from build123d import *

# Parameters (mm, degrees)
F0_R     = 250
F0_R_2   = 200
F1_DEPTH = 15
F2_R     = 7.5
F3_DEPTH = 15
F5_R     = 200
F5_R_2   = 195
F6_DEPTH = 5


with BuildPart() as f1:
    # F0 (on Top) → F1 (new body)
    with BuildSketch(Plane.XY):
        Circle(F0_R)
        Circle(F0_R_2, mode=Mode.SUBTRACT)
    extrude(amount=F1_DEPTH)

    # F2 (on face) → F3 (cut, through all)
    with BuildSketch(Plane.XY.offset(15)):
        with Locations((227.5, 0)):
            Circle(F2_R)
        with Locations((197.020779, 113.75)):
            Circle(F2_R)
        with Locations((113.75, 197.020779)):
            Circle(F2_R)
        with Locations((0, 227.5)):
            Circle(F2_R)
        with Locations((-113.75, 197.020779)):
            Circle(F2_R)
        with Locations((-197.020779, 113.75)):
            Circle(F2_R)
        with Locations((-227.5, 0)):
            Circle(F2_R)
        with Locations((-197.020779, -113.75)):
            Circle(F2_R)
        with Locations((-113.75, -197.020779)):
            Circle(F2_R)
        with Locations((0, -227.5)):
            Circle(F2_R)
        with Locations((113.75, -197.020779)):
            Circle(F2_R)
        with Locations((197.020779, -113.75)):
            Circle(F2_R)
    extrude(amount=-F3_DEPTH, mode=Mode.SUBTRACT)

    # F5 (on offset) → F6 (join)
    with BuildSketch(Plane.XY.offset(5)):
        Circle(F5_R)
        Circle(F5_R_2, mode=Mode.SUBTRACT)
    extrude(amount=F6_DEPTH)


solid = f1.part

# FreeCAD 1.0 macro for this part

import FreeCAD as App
import Part
import Sketcher

V = App.Vector
Q = App.Units.Quantity

doc = App.newDocument("Part")
body = doc.addObject("PartDesign::Body", "Body")

# Sketch on XY plane
sketch1 = body.newObject("Sketcher::SketchObject", "Sketch")
sketch1.AttachmentSupport = (doc.getObject("XY_Plane"), [""])
sketch1.MapMode = "FlatFace"
sketch1.addGeometry([
    Part.Circle(V(0, 0, 0), V(0, 0, 1), 250),
    Part.Circle(V(0, 0, 0), V(0, 0, 1), 200),
], False)
sketch1.addConstraint([
    Sketcher.Constraint("Coincident", 0, 3, -1, 1),
    Sketcher.Constraint("Coincident", 1, 3, -1, 1),
    Sketcher.Constraint("Diameter", 0, Q("500 mm")),
    Sketcher.Constraint("Diameter", 1, Q("400 mm")),
])
pad1 = body.newObject("PartDesign::Pad", "Pad")
pad1.Profile = sketch1
pad1.Length = 15

# Sketch on XY plane
sketch2 = body.newObject("Sketcher::SketchObject", "Sketch001")
sketch2.AttachmentSupport = (doc.getObject("XY_Plane"), [""])
sketch2.MapMode = "FlatFace"
sketch2.AttachmentOffset = App.Placement(V(0, 0, 15), App.Rotation())
sketch2.addGeometry([
    Part.Circle(V(227.5, 0, 0), V(0, 0, 1), 7.5),  # 0
    Part.Circle(V(197.020779, 113.75, 0), V(0, 0, 1), 7.5),  # 1
    Part.Circle(V(113.75, 197.020779, 0), V(0, 0, 1), 7.5),  # 2
    Part.Circle(V(0, 227.5, 0), V(0, 0, 1), 7.5),  # 3
    Part.Circle(V(-113.75, 197.020779, 0), V(0, 0, 1), 7.5),  # 4
    Part.Circle(V(-197.020779, 113.75, 0), V(0, 0, 1), 7.5),  # 5
    Part.Circle(V(-227.5, 0, 0), V(0, 0, 1), 7.5),  # 6
    Part.Circle(V(-197.020779, -113.75, 0), V(0, 0, 1), 7.5),  # 7
    Part.Circle(V(-113.75, -197.020779, 0), V(0, 0, 1), 7.5),  # 8
    Part.Circle(V(0, -227.5, 0), V(0, 0, 1), 7.5),  # 9
    Part.Circle(V(113.75, -197.020779, 0), V(0, 0, 1), 7.5),  # 10
    Part.Circle(V(197.020779, -113.75, 0), V(0, 0, 1), 7.5),  # 11
], False)
sketch2.addConstraint([
    Sketcher.Constraint("Equal", 0, 1),
    Sketcher.Constraint("Equal", 1, 2),
    Sketcher.Constraint("Equal", 2, 3),
    Sketcher.Constraint("Equal", 3, 4),
    Sketcher.Constraint("Equal", 4, 5),
    Sketcher.Constraint("Equal", 5, 6),
    Sketcher.Constraint("Equal", 6, 7),
    Sketcher.Constraint("Equal", 7, 8),
    Sketcher.Constraint("Equal", 8, 9),
    Sketcher.Constraint("Equal", 9, 10),
    Sketcher.Constraint("Equal", 10, 11),
    Sketcher.Constraint("Symmetric", 0, 3, 6, 3, -1, 1),
    Sketcher.Constraint("Symmetric", 1, 3, 7, 3, -1, 1),
    Sketcher.Constraint("Symmetric", 2, 3, 8, 3, -1, 1),
    Sketcher.Constraint("Symmetric", 3, 3, 9, 3, -1, 1),
    Sketcher.Constraint("Symmetric", 4, 3, 10, 3, -1, 1),
    Sketcher.Constraint("Symmetric", 5, 3, 11, 3, -1, 1),
    Sketcher.Constraint("Symmetric", 2, 3, 4, 3, -2),
    Sketcher.Constraint("Symmetric", 1, 3, 5, 3, -2),
    Sketcher.Constraint("PointOnObject", 0, 3, -1),
    Sketcher.Constraint("PointOnObject", 3, 3, -2),
    Sketcher.Constraint("Diameter", 0, Q("15 mm")),
    Sketcher.Constraint("DistanceX", -1, 1, 0, 3, Q("227.5 mm")),
    Sketcher.Constraint("DistanceY", -1, 1, 3, 3, Q("227.5 mm")),
    Sketcher.Constraint("DistanceX", 4, 3, 2, 3, Q("227.5 mm")),
    Sketcher.Constraint("DistanceY", 7, 3, 5, 3, Q("227.5 mm")),
    Sketcher.Constraint("DistanceX", -1, 1, 1, 3, Q("197.020779 mm")),
    Sketcher.Constraint("DistanceY", -1, 1, 2, 3, Q("197.020779 mm")),
])
pocket1 = body.newObject("PartDesign::Pocket", "Pocket")
pocket1.Profile = sketch2
pocket1.Type = "ThroughAll"

# Sketch on XY plane
sketch3 = body.newObject("Sketcher::SketchObject", "Sketch002")
sketch3.AttachmentSupport = (doc.getObject("XY_Plane"), [""])
sketch3.MapMode = "FlatFace"
sketch3.AttachmentOffset = App.Placement(V(0, 0, 5), App.Rotation())
sketch3.addGeometry([
    Part.Circle(V(0, 0, 0), V(0, 0, 1), 200),
    Part.Circle(V(0, 0, 0), V(0, 0, 1), 195),
], False)
sketch3.addConstraint([
    Sketcher.Constraint("Coincident", 0, 3, -1, 1),
    Sketcher.Constraint("Coincident", 1, 3, -1, 1),
    Sketcher.Constraint("Diameter", 0, Q("400 mm")),
    Sketcher.Constraint("Diameter", 1, Q("390 mm")),
])
pad2 = body.newObject("PartDesign::Pad", "Pad001")
pad2.Profile = sketch3
pad2.Length = 5

doc.recompute()
